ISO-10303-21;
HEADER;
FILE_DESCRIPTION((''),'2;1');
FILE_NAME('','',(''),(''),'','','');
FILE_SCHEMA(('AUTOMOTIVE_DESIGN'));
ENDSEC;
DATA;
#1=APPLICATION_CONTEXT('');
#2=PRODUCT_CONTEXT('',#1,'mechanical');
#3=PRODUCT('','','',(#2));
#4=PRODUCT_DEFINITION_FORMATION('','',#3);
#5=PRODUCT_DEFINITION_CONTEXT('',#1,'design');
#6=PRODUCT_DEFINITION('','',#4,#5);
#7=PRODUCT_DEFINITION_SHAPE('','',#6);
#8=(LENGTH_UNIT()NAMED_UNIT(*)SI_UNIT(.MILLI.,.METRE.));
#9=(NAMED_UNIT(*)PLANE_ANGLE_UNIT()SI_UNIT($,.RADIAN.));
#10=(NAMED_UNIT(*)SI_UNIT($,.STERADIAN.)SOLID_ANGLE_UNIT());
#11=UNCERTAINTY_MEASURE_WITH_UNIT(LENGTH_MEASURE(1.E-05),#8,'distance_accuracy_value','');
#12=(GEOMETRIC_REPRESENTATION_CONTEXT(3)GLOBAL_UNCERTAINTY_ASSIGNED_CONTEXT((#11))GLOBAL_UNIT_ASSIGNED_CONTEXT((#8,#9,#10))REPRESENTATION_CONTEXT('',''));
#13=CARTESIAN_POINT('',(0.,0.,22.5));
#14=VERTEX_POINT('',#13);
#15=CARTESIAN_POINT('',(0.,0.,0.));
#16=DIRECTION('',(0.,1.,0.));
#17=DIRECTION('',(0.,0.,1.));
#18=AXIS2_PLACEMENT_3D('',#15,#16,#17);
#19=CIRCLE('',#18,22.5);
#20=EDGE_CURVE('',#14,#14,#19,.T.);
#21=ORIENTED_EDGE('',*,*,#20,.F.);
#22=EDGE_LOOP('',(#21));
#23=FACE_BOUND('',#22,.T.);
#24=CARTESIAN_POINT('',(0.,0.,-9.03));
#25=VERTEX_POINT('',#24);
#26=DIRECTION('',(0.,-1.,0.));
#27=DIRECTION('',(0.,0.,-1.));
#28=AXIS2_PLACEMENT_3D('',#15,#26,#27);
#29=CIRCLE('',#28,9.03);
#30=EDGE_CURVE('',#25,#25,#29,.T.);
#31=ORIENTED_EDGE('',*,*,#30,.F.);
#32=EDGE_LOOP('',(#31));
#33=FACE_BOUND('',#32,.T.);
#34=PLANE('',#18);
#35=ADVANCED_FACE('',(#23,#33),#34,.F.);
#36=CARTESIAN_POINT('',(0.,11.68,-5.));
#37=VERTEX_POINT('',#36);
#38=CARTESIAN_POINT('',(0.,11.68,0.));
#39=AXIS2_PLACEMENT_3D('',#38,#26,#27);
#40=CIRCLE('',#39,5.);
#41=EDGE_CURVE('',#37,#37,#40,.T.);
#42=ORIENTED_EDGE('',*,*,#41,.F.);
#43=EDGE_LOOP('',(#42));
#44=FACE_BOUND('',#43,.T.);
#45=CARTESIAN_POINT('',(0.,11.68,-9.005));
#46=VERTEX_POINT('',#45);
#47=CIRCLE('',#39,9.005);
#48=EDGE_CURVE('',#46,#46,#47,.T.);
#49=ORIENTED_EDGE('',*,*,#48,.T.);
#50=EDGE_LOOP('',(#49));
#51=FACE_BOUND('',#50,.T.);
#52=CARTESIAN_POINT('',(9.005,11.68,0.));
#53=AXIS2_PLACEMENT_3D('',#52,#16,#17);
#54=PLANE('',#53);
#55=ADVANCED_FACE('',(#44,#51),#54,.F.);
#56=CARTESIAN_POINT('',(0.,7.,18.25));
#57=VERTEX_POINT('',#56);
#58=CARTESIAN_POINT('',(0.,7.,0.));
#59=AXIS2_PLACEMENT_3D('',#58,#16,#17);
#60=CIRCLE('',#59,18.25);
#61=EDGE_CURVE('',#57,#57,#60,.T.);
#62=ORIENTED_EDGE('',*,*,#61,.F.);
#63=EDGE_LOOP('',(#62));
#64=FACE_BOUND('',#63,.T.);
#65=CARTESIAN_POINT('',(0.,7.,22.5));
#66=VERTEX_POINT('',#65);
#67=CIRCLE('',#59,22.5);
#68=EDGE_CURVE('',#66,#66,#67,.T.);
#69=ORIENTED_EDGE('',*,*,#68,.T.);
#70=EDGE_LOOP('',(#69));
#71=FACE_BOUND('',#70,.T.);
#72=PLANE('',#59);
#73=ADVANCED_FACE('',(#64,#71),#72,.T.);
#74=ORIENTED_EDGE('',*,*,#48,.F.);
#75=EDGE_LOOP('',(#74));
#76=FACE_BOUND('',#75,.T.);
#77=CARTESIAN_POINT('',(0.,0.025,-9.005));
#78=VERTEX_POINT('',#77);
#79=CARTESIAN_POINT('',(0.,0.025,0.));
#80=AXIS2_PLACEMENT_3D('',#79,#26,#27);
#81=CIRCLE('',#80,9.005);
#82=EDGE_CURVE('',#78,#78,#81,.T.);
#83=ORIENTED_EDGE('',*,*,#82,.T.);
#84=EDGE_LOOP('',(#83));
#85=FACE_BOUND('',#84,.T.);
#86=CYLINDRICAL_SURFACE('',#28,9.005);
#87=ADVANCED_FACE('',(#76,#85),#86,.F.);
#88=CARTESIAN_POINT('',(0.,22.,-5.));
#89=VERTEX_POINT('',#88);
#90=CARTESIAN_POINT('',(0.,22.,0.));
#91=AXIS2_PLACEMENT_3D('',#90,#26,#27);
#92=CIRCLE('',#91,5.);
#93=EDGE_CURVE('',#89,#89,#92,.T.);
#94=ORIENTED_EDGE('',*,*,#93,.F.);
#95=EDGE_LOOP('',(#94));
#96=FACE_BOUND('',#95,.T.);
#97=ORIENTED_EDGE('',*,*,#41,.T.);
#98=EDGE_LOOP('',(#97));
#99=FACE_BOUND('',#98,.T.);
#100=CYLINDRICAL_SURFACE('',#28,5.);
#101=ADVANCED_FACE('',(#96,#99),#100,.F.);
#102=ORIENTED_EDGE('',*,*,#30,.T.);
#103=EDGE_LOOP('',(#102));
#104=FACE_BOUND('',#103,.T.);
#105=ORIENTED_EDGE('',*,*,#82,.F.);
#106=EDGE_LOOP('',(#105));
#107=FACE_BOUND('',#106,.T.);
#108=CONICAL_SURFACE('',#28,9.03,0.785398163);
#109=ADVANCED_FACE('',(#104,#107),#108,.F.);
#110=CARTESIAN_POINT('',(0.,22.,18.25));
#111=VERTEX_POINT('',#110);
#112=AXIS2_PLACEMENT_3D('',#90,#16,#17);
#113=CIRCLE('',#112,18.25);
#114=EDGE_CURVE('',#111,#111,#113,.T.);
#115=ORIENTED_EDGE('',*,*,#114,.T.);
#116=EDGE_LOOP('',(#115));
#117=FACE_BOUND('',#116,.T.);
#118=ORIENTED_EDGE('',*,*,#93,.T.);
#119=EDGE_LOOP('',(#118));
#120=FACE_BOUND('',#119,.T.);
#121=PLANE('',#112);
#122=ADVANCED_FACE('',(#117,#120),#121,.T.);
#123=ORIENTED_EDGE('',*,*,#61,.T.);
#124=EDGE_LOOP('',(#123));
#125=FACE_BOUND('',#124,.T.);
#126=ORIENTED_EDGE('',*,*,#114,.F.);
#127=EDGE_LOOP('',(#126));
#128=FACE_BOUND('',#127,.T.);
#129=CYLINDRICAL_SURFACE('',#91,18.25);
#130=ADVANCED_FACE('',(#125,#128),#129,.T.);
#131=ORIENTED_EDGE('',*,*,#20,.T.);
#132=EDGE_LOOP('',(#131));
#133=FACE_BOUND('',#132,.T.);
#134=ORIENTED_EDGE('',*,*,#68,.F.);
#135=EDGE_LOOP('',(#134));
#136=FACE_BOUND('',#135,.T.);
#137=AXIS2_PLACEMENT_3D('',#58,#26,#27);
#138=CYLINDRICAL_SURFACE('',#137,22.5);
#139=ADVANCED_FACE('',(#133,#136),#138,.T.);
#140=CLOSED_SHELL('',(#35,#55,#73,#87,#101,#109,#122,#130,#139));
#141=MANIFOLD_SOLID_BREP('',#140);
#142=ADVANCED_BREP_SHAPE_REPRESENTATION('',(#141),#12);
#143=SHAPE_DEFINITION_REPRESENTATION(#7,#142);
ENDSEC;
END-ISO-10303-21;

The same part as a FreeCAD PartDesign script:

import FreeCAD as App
import Part
import Sketcher

V = App.Vector
Q = App.Units.Quantity

doc = App.newDocument("Part")
body = doc.addObject("PartDesign::Body", "Body")

sketch1 = doc.addObject("Sketcher::SketchObject", "Sketch")
body.addObject(sketch1)
sketch1.AttachmentSupport = (doc.XZ_Plane, [""])
sketch1.MapMode = "FlatFace"
sketch1.addGeometry(Part.Circle(V(0, 0, 0), V(0, 0, 1), 22.5), False)
sketch1.addConstraint(Sketcher.Constraint("Coincident", 0, 3, -1, 1))
sketch1.addConstraint(Sketcher.Constraint("Diameter", 0, Q("45 mm")))
pad1 = doc.addObject("PartDesign::Pad", "Pad")
body.addObject(pad1)
pad1.Profile = sketch1
pad1.Length = 7
pad1.Reversed = True

sketch2 = doc.addObject("Sketcher::SketchObject", "Sketch001")
body.addObject(sketch2)
sketch2.AttachmentSupport = (doc.XZ_Plane, [""])
sketch2.MapMode = "FlatFace"
sketch2.AttachmentOffset = App.Placement(V(0, 0, -7), App.Rotation())
sketch2.addGeometry(Part.Circle(V(0, 0, 0), V(0, 0, 1), 18.25), False)
sketch2.addConstraint(Sketcher.Constraint("Coincident", 0, 3, -1, 1))
sketch2.addConstraint(Sketcher.Constraint("Diameter", 0, Q("36.5 mm")))
pad2 = doc.addObject("PartDesign::Pad", "Pad001")
body.addObject(pad2)
pad2.Profile = sketch2
pad2.Length = 15
pad2.Reversed = True

sketch3 = doc.addObject("Sketcher::SketchObject", "Sketch002")
body.addObject(sketch3)
sketch3.AttachmentSupport = (doc.YZ_Plane, [""])
sketch3.MapMode = "FlatFace"
sketch3.addGeometry(Part.LineSegment(V(22, 0, 0), V(0, 0, 0)), False)
sketch3.addGeometry(Part.LineSegment(V(0, 0, 0), V(0, -9.03, 0)), False)
sketch3.addGeometry(Part.LineSegment(V(0, -9.03, 0), V(0.025, -9.005, 0)), False)
sketch3.addGeometry(Part.LineSegment(V(0.025, -9.005, 0), V(11.68, -9.005, 0)), False)
sketch3.addGeometry(Part.LineSegment(V(11.68, -9.005, 0), V(11.68, -5, 0)), False)
sketch3.addGeometry(Part.LineSegment(V(11.68, -5, 0), V(22, -5, 0)), False)
sketch3.addGeometry(Part.LineSegment(V(22, -5, 0), V(22, 0, 0)), False)
sketch3.addConstraint(Sketcher.Constraint("Coincident", 0, 2, 1, 1))
sketch3.addConstraint(Sketcher.Constraint("Coincident", 1, 2, 2, 1))
sketch3.addConstraint(Sketcher.Constraint("Coincident", 2, 2, 3, 1))
sketch3.addConstraint(Sketcher.Constraint("Coincident", 3, 2, 4, 1))
sketch3.addConstraint(Sketcher.Constraint("Coincident", 4, 2, 5, 1))
sketch3.addConstraint(Sketcher.Constraint("Coincident", 5, 2, 6, 1))
sketch3.addConstraint(Sketcher.Constraint("Coincident", 6, 2, 0, 1))
sketch3.addConstraint(Sketcher.Constraint("Horizontal", 0))
sketch3.addConstraint(Sketcher.Constraint("Vertical", 1))
sketch3.addConstraint(Sketcher.Constraint("Horizontal", 3))
sketch3.addConstraint(Sketcher.Constraint("Vertical", 4))
sketch3.addConstraint(Sketcher.Constraint("Horizontal", 5))
sketch3.addConstraint(Sketcher.Constraint("Vertical", 6))
sketch3.addConstraint(Sketcher.Constraint("Coincident", 0, 2, -1, 1))
sketch3.addConstraint(Sketcher.Constraint("DistanceX", 0, 2, 0, 1, Q("22 mm")))
sketch3.addConstraint(Sketcher.Constraint("DistanceY", 6, 1, 6, 2, Q("5 mm")))
sketch3.addConstraint(Sketcher.Constraint("Angle", 2, Q("45 deg")))
sketch3.addConstraint(Sketcher.Constraint("DistanceX", 5, 1, 5, 2, Q("10.32 mm")))
sketch3.addConstraint(Sketcher.Constraint("DistanceY", 1, 2, 1, 1, Q("9.03 mm")))
sketch3.addConstraint(Sketcher.Constraint("DistanceX", 3, 1, 3, 2, Q("11.655 mm")))
groove = doc.addObject("PartDesign::Groove", "Groove")
body.addObject(groove)
groove.Profile = sketch3
groove.ReferenceAxis = (sketch3, ["H_Axis"])
groove.Angle = 360

doc.recompute()
